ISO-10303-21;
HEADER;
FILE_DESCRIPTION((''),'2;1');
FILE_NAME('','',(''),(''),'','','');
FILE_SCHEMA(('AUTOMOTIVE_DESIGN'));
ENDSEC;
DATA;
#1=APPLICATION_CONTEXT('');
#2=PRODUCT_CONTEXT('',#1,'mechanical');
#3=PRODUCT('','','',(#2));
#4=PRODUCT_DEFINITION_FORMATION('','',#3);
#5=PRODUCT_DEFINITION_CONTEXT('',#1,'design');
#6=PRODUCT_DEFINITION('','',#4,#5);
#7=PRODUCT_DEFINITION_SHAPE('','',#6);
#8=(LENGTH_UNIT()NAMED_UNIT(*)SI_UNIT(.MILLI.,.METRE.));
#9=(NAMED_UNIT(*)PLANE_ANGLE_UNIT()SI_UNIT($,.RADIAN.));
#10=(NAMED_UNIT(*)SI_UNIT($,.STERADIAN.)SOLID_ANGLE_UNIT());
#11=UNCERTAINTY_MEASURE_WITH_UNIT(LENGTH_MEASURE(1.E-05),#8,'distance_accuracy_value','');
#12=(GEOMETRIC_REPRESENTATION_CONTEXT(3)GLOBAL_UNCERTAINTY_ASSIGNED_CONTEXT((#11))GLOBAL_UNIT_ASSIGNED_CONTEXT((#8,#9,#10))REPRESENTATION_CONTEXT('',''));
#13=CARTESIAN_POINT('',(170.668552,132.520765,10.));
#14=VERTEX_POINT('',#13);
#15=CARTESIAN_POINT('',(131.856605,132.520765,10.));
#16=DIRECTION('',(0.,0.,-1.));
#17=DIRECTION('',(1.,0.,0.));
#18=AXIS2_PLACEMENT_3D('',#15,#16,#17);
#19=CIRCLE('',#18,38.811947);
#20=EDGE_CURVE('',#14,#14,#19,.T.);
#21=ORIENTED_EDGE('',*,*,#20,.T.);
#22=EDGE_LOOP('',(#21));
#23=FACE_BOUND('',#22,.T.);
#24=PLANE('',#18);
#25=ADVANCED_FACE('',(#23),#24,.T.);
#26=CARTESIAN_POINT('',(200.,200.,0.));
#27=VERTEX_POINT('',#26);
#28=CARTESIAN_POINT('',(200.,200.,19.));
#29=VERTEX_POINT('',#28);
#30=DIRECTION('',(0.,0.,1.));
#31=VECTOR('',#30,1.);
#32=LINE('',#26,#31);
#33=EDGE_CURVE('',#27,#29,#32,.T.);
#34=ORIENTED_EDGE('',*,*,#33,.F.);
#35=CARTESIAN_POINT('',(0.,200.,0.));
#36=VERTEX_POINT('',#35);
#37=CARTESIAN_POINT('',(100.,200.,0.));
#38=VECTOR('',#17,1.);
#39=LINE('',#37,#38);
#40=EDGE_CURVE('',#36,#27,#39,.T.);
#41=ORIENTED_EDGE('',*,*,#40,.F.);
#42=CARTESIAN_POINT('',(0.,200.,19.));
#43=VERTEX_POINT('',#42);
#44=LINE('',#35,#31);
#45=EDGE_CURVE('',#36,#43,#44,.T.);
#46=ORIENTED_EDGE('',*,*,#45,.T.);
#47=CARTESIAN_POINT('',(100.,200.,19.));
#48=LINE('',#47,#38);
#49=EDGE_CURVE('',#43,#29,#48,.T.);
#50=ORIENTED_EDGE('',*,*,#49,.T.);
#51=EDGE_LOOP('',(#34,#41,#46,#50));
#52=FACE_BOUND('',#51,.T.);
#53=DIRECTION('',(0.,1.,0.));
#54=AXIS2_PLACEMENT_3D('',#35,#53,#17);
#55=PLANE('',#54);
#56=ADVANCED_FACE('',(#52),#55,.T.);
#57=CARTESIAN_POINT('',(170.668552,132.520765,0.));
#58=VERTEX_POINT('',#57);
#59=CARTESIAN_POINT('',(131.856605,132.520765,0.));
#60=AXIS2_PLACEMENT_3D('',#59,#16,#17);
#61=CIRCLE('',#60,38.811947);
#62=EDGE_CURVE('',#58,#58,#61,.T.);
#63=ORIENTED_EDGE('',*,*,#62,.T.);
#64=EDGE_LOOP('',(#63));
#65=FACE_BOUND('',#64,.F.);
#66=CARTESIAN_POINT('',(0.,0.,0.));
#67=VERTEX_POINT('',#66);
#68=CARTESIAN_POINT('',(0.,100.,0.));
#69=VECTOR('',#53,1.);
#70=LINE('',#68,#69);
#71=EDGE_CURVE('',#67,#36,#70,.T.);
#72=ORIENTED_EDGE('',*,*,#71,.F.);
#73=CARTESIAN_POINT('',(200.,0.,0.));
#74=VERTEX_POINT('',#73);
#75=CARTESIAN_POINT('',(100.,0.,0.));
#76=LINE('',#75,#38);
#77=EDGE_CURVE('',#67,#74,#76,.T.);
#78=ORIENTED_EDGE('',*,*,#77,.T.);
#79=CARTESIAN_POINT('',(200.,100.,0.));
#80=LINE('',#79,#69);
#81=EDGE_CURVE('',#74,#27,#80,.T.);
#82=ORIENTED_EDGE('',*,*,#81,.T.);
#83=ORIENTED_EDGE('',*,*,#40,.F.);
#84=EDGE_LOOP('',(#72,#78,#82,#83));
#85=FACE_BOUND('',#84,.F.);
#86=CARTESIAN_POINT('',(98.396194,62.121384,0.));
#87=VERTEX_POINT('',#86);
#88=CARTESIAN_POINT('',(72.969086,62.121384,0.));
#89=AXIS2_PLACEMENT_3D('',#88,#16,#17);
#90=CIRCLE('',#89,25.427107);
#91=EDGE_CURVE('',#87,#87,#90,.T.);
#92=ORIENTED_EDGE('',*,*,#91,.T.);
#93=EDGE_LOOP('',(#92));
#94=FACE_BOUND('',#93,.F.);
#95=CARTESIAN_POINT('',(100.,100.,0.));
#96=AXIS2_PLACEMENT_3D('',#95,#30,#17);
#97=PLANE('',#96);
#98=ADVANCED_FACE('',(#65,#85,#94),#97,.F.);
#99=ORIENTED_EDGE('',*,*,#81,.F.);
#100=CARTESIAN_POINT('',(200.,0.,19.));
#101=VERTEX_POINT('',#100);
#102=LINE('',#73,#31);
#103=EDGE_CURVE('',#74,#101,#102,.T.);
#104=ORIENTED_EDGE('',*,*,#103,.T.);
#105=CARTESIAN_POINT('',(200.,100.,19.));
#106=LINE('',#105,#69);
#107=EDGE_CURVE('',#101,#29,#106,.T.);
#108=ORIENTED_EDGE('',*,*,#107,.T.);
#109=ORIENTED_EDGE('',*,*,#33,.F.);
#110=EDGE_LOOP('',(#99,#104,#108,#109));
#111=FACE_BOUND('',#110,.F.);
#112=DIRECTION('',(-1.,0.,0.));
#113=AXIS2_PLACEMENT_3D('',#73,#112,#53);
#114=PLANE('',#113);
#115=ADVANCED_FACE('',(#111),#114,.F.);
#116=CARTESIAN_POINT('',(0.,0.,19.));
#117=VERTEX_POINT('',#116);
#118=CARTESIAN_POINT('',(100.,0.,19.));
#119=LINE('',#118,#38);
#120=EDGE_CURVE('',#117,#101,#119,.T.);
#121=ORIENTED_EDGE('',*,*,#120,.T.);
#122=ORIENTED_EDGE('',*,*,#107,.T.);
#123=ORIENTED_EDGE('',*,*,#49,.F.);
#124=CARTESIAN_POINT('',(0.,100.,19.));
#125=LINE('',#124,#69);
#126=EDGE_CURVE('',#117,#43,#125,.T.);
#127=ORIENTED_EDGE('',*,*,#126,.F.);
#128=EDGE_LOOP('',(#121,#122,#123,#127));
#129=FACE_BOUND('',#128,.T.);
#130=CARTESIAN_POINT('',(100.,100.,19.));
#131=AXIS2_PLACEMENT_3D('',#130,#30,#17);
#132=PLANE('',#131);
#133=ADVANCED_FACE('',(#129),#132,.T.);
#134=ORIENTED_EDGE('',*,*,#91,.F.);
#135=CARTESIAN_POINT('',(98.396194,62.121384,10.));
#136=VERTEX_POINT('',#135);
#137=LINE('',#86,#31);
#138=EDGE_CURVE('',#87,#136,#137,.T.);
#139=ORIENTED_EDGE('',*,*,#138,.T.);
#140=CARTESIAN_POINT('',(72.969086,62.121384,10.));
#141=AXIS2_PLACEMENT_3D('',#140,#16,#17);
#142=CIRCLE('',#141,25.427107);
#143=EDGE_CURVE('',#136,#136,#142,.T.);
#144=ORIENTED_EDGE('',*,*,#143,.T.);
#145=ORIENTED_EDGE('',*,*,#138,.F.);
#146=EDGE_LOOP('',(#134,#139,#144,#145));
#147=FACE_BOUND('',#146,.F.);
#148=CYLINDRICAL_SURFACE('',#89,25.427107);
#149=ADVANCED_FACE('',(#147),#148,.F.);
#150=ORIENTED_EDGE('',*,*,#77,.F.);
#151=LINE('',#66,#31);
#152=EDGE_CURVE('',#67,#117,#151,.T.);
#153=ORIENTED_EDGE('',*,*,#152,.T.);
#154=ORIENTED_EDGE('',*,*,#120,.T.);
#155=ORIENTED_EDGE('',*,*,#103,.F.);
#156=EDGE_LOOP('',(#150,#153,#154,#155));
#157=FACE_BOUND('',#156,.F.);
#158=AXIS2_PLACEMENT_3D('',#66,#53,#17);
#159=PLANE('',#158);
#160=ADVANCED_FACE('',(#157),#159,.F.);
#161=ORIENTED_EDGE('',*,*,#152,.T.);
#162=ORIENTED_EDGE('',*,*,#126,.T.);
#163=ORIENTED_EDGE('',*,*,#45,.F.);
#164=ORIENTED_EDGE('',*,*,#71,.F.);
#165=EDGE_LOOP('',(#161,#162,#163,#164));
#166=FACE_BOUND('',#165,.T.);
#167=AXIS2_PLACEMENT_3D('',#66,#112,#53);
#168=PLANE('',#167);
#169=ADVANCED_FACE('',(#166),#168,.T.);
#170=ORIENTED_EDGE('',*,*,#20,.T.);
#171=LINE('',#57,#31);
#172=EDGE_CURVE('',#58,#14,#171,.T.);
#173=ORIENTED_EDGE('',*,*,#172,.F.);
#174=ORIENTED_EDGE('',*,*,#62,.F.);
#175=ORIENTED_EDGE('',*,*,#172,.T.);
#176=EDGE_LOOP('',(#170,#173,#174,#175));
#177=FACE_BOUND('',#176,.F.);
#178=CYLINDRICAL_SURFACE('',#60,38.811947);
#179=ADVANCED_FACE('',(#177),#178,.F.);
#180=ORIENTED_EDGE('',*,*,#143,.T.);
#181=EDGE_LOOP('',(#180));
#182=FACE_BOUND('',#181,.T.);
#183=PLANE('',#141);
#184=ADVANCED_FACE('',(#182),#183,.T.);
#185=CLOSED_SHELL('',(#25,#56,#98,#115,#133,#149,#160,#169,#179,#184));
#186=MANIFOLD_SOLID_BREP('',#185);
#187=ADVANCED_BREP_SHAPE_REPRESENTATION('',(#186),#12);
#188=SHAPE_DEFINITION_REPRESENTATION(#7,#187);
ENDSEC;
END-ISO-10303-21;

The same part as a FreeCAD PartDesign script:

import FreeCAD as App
import Part
import Sketcher

doc = App.newDocument("Part")
body = doc.addObject("PartDesign::Body", "Body")

# Sketch on XY plane
sketch1 = body.newObject("Sketcher::SketchObject", "Sketch")
sketch1.AttachmentSupport = (doc.getObject("XY_Plane"), [""])
sketch1.MapMode = "FlatFace"
sketch1.addGeometry([
    Part.LineSegment(App.Vector(0, 200, 0), App.Vector(0, 0, 0)),
    Part.LineSegment(App.Vector(0, 0, 0), App.Vector(200, 0, 0)),
    Part.LineSegment(App.Vector(200, 0, 0), App.Vector(200, 200, 0)),
    Part.LineSegment(App.Vector(200, 200, 0), App.Vector(0, 200, 0)),
], False)
sketch1.addConstraint([
    Sketcher.Constraint("Coincident", 0, 2, 1, 1),
    Sketcher.Constraint("Coincident", 1, 2, 2, 1),
    Sketcher.Constraint("Coincident", 2, 2, 3, 1),
    Sketcher.Constraint("Coincident", 3, 2, 0, 1),
    Sketcher.Constraint("Vertical", 0),
    Sketcher.Constraint("Horizontal", 1),
    Sketcher.Constraint("Vertical", 2),
    Sketcher.Constraint("Horizontal", 3),
    Sketcher.Constraint("Coincident", 0, 2, -1, 1),
    Sketcher.Constraint("Equal", 3, 0),
    Sketcher.Constraint("DistanceX", 1, 1, 1, 2, 200.0),
])
pad1 = body.newObject("PartDesign::Pad", "Pad")
pad1.Profile = sketch1
pad1.Length = 19

# Sketch on XY plane
sketch2 = body.newObject("Sketcher::SketchObject", "Sketch001")
sketch2.AttachmentSupport = (doc.getObject("XY_Plane"), [""])
sketch2.MapMode = "FlatFace"
sketch2.addGeometry([
    Part.Circle(App.Vector(73, 62, 0), App.Vector(0, 0, 1), 25),
    Part.Circle(App.Vector(132, 133, 0), App.Vector(0, 0, 1), 39),
], False)
sketch2.addConstraint([
    Sketcher.Constraint("Diameter", 0, 50.854215),
    Sketcher.Constraint("Diameter", 1, 77.623894),
    Sketcher.Constraint("DistanceX", 0, 3, 1, 3, 58.887519),
    Sketcher.Constraint("DistanceY", 0, 3, 1, 3, 70.399381),
    Sketcher.Constraint("DistanceX", -1, 1, 0, 3, 72.969086),
    Sketcher.Constraint("DistanceY", -1, 1, 0, 3, 62.121384),
])
pocket1 = body.newObject("PartDesign::Pocket", "Pocket")
pocket1.Profile = sketch2
pocket1.Length = 10
pocket1.Reversed = True

doc.recompute()
